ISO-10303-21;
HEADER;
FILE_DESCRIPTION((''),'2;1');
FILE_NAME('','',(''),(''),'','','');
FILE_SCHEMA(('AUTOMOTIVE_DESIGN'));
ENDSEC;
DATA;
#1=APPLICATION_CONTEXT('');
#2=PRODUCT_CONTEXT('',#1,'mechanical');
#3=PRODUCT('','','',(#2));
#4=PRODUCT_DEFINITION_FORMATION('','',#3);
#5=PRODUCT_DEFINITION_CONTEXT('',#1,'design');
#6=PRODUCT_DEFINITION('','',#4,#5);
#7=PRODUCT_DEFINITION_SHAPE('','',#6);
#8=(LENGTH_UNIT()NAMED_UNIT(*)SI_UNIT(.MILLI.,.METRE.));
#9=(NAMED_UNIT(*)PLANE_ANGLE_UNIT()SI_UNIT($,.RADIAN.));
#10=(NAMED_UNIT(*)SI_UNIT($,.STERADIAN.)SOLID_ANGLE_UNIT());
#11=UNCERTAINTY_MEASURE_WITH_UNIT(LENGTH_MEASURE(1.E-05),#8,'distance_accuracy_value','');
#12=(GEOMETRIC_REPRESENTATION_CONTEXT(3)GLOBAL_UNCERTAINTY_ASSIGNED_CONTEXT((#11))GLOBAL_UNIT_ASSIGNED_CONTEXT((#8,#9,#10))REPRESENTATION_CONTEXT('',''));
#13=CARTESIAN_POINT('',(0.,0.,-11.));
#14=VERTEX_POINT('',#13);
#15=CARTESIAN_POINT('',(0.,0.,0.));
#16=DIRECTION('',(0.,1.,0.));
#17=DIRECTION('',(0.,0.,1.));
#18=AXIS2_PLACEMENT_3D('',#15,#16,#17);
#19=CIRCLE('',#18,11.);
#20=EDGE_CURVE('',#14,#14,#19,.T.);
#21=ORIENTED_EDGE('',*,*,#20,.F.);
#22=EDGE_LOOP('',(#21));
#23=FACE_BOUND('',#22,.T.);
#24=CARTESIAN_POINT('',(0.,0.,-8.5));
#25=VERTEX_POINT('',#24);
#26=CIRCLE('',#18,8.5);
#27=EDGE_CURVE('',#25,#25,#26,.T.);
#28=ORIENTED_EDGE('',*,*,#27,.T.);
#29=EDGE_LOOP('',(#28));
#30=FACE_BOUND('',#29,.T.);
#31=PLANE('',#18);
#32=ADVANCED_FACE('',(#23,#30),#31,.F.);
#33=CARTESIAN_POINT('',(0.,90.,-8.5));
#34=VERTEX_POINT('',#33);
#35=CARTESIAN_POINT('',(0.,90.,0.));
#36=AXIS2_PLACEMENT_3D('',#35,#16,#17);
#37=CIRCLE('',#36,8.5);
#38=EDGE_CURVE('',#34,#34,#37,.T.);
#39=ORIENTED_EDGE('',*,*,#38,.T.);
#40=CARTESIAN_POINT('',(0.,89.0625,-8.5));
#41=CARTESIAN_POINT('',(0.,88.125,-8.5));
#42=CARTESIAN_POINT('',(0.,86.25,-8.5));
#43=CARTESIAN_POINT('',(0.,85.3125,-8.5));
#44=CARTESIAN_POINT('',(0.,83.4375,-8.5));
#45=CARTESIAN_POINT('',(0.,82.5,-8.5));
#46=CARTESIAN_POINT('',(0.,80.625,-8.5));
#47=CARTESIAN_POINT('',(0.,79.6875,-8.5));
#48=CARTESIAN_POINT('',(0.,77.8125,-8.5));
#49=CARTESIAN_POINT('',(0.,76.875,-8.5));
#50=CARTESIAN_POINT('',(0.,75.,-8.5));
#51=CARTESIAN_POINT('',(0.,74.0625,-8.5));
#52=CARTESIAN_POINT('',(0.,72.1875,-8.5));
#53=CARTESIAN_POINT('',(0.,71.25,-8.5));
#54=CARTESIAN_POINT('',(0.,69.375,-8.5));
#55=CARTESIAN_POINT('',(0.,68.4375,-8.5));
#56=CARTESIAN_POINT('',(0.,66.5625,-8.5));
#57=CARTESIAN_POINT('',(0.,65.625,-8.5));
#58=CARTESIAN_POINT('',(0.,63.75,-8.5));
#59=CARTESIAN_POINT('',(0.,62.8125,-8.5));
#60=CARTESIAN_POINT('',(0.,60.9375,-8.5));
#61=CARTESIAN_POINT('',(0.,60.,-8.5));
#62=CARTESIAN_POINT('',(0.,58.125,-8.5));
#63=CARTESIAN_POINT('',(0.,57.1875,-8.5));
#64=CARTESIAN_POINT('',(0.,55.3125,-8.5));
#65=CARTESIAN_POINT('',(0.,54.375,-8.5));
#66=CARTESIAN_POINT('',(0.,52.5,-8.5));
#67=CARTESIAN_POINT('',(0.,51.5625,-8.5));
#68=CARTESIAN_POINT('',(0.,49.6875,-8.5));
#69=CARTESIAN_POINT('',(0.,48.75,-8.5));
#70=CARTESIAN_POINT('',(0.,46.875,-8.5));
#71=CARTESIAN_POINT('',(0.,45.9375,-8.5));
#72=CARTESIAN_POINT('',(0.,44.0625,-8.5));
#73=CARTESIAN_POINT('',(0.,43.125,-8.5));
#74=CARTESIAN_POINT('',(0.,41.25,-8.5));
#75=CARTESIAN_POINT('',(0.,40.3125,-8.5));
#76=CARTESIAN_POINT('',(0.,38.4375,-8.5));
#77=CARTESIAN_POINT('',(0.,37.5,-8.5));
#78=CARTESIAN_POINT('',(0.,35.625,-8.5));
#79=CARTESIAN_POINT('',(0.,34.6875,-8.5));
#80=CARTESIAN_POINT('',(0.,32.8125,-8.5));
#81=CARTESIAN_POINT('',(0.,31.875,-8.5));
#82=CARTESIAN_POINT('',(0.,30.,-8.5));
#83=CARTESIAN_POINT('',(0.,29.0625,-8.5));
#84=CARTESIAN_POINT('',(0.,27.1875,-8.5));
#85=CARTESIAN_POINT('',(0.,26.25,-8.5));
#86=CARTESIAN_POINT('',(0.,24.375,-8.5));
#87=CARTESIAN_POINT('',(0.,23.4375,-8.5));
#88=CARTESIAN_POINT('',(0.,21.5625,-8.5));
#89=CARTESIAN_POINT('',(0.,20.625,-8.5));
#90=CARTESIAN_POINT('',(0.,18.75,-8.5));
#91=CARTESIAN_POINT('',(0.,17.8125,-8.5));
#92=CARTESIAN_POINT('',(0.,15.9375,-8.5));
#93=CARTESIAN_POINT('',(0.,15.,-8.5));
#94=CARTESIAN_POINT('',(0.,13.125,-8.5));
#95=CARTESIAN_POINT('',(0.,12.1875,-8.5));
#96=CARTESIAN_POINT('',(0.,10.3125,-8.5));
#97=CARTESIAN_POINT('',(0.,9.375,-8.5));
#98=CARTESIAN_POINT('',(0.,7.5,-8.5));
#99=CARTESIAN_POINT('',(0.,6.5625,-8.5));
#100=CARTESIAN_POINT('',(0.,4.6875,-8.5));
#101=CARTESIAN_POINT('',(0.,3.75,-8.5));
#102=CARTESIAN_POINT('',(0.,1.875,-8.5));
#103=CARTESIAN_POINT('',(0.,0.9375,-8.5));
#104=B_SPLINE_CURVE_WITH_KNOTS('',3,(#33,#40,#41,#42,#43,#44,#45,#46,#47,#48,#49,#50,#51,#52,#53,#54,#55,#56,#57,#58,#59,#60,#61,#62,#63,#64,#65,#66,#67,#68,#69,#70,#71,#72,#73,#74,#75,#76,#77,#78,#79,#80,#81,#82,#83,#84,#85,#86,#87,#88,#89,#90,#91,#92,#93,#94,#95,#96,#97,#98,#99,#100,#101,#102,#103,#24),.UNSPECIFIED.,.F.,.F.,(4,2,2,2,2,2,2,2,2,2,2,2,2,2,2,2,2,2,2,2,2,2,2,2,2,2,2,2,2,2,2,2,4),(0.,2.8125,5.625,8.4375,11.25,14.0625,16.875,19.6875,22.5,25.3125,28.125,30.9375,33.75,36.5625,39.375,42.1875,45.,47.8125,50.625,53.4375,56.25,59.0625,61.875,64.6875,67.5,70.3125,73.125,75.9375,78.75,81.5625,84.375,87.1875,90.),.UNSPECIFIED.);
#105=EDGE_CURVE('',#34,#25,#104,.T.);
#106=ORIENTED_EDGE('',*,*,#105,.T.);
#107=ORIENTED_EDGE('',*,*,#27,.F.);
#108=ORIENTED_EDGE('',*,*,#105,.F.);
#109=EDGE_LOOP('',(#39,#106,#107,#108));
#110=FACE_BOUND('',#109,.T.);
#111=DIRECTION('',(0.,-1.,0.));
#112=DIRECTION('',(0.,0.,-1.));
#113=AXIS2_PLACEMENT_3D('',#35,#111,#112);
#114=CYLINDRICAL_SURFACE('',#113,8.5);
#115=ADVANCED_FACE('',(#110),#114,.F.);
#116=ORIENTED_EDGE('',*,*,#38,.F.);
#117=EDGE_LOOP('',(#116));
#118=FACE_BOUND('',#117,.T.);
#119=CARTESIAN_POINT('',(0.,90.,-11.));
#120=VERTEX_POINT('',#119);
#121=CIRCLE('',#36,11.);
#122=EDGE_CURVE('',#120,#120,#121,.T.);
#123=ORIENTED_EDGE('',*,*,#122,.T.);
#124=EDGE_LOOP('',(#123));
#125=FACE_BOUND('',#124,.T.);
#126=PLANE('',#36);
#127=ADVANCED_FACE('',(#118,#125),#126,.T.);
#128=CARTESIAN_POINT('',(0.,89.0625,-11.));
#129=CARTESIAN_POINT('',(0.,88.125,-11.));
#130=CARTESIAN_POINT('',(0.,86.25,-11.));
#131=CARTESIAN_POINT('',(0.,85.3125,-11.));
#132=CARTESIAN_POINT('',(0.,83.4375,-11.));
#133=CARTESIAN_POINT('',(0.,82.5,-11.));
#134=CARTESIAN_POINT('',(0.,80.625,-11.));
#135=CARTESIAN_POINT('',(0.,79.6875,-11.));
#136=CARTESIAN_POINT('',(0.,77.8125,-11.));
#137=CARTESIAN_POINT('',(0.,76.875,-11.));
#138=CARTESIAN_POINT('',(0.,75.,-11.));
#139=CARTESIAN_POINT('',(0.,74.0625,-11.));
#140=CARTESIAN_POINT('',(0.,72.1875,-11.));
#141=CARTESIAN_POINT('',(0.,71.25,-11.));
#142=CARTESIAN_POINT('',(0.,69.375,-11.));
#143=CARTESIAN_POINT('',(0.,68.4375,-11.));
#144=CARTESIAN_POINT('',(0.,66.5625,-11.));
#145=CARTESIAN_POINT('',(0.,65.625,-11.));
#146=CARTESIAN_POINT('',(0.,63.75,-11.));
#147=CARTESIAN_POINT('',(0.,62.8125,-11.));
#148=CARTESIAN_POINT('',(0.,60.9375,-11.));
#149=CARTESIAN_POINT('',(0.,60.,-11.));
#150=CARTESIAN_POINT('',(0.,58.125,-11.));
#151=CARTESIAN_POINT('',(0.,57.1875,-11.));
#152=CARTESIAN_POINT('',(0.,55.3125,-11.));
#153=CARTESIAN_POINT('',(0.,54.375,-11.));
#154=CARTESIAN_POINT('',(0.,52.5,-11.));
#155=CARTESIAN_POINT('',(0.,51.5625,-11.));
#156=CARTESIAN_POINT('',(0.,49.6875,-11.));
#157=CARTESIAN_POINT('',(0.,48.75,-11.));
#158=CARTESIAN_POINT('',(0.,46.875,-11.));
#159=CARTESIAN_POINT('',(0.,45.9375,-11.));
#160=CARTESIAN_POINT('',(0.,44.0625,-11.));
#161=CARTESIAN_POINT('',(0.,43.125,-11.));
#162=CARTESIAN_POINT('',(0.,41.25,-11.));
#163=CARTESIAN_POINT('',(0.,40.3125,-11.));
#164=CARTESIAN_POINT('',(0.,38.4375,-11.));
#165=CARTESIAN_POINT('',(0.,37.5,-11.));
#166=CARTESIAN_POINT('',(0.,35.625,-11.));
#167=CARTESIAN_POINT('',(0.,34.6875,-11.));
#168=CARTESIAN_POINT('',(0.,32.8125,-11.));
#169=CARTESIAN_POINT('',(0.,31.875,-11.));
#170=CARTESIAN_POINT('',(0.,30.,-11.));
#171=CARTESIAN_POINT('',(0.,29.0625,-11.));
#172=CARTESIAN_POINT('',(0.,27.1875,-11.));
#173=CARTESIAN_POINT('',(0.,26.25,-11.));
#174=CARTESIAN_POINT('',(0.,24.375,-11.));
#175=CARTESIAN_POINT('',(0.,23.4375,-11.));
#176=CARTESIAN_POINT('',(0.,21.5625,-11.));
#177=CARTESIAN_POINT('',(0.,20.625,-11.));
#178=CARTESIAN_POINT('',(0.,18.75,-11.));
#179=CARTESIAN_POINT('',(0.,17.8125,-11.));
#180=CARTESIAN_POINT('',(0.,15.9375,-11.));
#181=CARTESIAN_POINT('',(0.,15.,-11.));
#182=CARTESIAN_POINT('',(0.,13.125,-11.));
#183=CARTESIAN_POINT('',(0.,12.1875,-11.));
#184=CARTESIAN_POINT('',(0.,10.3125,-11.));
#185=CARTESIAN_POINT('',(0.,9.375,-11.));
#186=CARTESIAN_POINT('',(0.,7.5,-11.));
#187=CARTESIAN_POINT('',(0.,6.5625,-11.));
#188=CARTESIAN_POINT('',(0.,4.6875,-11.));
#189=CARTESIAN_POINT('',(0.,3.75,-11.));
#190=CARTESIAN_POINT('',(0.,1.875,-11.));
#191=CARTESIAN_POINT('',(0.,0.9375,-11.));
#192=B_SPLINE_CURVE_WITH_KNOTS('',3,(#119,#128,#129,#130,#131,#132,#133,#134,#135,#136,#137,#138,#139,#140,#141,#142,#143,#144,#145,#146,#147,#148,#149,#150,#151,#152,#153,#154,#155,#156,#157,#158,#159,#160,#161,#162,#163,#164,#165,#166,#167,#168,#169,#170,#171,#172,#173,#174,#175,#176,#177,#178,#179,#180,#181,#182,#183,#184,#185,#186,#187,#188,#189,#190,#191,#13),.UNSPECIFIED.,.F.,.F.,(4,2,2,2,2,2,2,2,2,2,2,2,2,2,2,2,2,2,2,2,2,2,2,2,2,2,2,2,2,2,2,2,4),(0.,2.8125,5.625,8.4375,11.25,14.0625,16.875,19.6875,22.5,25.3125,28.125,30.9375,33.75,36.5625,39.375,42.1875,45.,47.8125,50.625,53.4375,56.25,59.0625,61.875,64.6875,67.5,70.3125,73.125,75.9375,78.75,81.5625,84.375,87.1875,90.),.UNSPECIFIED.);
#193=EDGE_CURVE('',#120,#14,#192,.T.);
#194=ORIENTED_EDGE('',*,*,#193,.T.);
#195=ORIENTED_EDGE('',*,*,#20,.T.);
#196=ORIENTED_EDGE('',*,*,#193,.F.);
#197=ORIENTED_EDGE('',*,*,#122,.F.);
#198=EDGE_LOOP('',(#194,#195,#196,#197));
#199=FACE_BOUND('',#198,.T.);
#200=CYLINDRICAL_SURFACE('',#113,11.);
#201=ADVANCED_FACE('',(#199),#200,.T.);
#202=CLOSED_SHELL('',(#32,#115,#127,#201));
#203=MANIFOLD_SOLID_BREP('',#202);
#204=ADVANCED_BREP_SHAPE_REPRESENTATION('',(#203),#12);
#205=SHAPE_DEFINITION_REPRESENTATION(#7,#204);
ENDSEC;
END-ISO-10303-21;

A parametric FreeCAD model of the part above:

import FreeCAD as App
import Part
import Sketcher
from FreeCAD import Vector
Q = App.Units.Quantity

doc = App.newDocument("Part")
params = doc.addObject("Spreadsheet::Sheet", "Params")
for row, (alias, value) in enumerate([
    ("sketch1_diameter", "22 mm"),
    ("sketch1_diameter2", "17 mm"),
    ("pad1_length", "90 mm"),
], start=1):
    params.set(f"A{row}", alias)
    params.set(f"B{row}", "=" + value)
    params.setAlias(f"B{row}", alias)

body = doc.addObject("PartDesign::Body", "Body")

sketch1 = body.newObject("Sketcher::SketchObject", "Sketch")
sketch1.AttachmentSupport = (doc.getObject("XZ_Plane"), [""])
sketch1.MapMode = "FlatFace"
sketch1.addGeometry(Part.Circle(Vector(0, 0, 0), Vector(0, 0, 1), 11), False)
sketch1.addGeometry(Part.Circle(Vector(0, 0, 0), Vector(0, 0, 1), 8), False)
sketch1.addConstraint(Sketcher.Constraint("Coincident", 0, 3, -1, 1))
sketch1.addConstraint(Sketcher.Constraint("Coincident", 1, 3, -1, 1))
sketch1.addConstraint(Sketcher.Constraint("Diameter", 0, Q("22 mm")))
sketch1.addConstraint(Sketcher.Constraint("Diameter", 1, Q("17 mm")))
sketch1.setExpression("Constraints[2]", "Params.sketch1_diameter")
sketch1.setExpression("Constraints[3]", "Params.sketch1_diameter2")
pad1 = body.newObject("PartDesign::Pad", "Pad")
pad1.Profile = sketch1
pad1.setExpression("Length", "Params.pad1_length")
pad1.Reversed = True

doc.recompute()
